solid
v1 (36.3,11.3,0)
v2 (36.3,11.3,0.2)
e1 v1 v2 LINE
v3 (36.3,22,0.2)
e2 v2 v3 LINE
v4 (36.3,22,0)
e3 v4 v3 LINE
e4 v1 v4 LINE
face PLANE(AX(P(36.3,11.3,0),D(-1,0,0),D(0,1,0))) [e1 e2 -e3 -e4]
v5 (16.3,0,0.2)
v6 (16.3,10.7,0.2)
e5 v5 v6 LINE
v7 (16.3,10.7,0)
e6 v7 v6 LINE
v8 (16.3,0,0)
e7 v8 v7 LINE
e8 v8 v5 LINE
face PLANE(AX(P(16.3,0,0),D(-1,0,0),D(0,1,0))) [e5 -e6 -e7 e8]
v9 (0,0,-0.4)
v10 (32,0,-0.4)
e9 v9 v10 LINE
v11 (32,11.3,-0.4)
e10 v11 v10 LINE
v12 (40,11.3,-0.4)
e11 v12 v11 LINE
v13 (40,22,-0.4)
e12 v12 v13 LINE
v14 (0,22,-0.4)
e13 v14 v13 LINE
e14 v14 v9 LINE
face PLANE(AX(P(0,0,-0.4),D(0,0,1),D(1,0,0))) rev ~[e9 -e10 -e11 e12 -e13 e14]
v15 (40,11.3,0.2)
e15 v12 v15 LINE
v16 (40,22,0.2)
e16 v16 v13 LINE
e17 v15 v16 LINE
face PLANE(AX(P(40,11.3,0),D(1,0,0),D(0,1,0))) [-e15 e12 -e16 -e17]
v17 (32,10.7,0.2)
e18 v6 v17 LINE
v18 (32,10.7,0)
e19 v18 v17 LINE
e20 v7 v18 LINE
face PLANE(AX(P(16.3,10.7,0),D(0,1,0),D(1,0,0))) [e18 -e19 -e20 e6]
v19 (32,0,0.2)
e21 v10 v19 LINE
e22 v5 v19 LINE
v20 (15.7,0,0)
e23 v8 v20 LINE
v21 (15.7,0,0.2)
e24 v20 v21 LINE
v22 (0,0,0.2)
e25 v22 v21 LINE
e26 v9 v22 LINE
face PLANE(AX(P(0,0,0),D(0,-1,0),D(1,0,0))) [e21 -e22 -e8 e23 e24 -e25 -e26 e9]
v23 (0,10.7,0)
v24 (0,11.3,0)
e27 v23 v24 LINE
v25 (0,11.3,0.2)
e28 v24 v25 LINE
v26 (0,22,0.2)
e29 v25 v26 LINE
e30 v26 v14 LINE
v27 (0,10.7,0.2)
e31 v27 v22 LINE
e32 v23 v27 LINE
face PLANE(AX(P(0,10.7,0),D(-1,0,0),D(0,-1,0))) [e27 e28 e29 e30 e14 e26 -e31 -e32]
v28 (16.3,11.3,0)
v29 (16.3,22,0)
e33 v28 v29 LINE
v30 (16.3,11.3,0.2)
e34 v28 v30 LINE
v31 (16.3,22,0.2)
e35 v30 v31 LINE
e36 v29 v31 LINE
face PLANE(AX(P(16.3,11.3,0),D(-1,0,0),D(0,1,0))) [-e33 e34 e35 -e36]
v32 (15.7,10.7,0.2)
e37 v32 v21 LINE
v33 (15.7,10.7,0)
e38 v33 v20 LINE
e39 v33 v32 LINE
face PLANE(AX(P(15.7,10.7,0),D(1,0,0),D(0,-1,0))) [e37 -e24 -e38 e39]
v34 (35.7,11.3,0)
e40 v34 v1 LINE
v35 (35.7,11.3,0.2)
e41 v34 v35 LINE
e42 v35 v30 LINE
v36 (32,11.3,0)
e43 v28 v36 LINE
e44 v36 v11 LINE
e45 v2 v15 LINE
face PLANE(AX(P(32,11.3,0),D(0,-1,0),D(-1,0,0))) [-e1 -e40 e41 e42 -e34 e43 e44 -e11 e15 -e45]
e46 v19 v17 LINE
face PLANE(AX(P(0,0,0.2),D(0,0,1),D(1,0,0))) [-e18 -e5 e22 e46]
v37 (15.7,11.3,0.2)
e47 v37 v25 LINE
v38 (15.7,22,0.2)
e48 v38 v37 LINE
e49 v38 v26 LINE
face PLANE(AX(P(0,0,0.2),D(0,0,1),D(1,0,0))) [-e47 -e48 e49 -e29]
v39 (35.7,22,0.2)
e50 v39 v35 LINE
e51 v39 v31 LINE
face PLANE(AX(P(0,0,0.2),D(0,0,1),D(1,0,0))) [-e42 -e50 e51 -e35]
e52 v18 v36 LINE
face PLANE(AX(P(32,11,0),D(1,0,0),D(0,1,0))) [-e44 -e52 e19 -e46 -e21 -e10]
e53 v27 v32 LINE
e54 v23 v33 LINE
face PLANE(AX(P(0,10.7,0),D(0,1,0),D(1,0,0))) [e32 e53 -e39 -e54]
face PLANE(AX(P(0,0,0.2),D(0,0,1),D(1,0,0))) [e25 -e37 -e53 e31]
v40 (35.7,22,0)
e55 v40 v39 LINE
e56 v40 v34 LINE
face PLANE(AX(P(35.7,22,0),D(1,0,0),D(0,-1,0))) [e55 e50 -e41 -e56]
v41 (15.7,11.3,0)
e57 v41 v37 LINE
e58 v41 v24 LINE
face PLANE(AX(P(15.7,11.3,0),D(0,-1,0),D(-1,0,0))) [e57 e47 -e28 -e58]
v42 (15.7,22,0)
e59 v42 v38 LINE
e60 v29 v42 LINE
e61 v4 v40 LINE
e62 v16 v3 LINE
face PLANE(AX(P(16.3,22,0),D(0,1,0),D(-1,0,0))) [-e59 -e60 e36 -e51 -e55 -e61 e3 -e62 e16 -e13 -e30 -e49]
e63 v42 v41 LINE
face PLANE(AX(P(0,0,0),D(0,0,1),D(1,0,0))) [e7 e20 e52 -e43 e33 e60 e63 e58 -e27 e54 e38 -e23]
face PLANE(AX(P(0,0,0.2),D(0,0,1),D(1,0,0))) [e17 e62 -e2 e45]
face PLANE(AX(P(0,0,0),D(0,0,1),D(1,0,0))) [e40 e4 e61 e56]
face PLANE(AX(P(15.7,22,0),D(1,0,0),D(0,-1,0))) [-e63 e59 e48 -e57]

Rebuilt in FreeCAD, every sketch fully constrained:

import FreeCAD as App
import Part
import Sketcher

V = App.Vector
Q = App.Units.Quantity

doc = App.newDocument("Part")
body = doc.addObject("PartDesign::Body", "Body")

# Sketch on XY plane
sketch1 = body.newObject("Sketcher::SketchObject", "Sketch")
sketch1.AttachmentSupport = (doc.getObject("XY_Plane"), [""])
sketch1.MapMode = "FlatFace"
sketch1.addGeometry([
    Part.LineSegment(V(0, 0, 0), V(32, 0, 0)),  # 0
    Part.LineSegment(V(32, 0, 0), V(32, 11, 0)),  # 1
    Part.LineSegment(V(32, 11, 0), V(40, 11, 0)),  # 2
    Part.LineSegment(V(40, 11, 0), V(40, 22, 0)),  # 3
    Part.LineSegment(V(40, 22, 0), V(0, 22, 0)),  # 4
    Part.LineSegment(V(0, 22, 0), V(0, 0, 0)),  # 5
], False)
sketch1.addConstraint([
    Sketcher.Constraint("Coincident", 0, 2, 1, 1),
    Sketcher.Constraint("Coincident", 1, 2, 2, 1),
    Sketcher.Constraint("Coincident", 2, 2, 3, 1),
    Sketcher.Constraint("Coincident", 3, 2, 4, 1),
    Sketcher.Constraint("Coincident", 4, 2, 5, 1),
    Sketcher.Constraint("Coincident", 5, 2, 0, 1),
    Sketcher.Constraint("Horizontal", 0),
    Sketcher.Constraint("Vertical", 1),
    Sketcher.Constraint("Horizontal", 2),
    Sketcher.Constraint("Vertical", 3),
    Sketcher.Constraint("Horizontal", 4),
    Sketcher.Constraint("Vertical", 5),
    Sketcher.Constraint("Coincident", 5, 2, -1, 1),
    Sketcher.Constraint("DistanceX", 2, 1, 2, 2, Q("8 mm")),
    Sketcher.Constraint("DistanceY", 5, 2, 5, 1, Q("22 mm")),
    Sketcher.Constraint("DistanceX", 0, 1, 0, 2, Q("32 mm")),
    Sketcher.Constraint("DistanceY", 1, 1, 1, 2, Q("11.3 mm")),
])
pad1 = body.newObject("PartDesign::Pad", "Pad")
pad1.Profile = sketch1
pad1.Length = 0.4
pad1.Reversed = True

# Sketch on XY plane
sketch2 = body.newObject("Sketcher::SketchObject", "Sketch001")
sketch2.AttachmentSupport = (doc.getObject("XY_Plane"), [""])
sketch2.MapMode = "FlatFace"
sketch2.addGeometry([
    Part.LineSegment(V(0, 10.7, 0), V(0, 0, 0)),  # 0
    Part.LineSegment(V(0, 0, 0), V(15.7, 0, 0)),  # 1
    Part.LineSegment(V(15.7, 0, 0), V(15.7, 10.7, 0)),  # 2
    Part.LineSegment(V(15.7, 10.7, 0), V(0, 10.7, 0)),  # 3
    Part.LineSegment(V(16.3, 10.7, 0), V(16.3, 0, 0)),  # 4
    Part.LineSegment(V(16.3, 0, 0), V(32, 0, 0)),  # 5
    Part.LineSegment(V(32, 0, 0), V(32, 10.7, 0)),  # 6
    Part.LineSegment(V(32, 10.7, 0), V(16.3, 10.7, 0)),  # 7
    Part.LineSegment(V(0, 22, 0), V(0, 11.3, 0)),  # 8
    Part.LineSegment(V(0, 11.3, 0), V(15.7, 11.3, 0)),  # 9
    Part.LineSegment(V(15.7, 11.3, 0), V(15.7, 22, 0)),  # 10
    Part.LineSegment(V(15.7, 22, 0), V(0, 22, 0)),  # 11
    Part.LineSegment(V(16.3, 11.3, 0), V(35.7, 11.3, 0)),  # 12
    Part.LineSegment(V(35.7, 11.3, 0), V(35.7, 22, 0)),  # 13
    Part.LineSegment(V(35.7, 22, 0), V(16.3, 22, 0)),  # 14
    Part.LineSegment(V(16.3, 22, 0), V(16.3, 11.3, 0)),  # 15
    Part.LineSegment(V(36.3, 22, 0), V(36.3, 11.3, 0)),  # 16
    Part.LineSegment(V(36.3, 11.3, 0), V(40, 11.3, 0)),  # 17
    Part.LineSegment(V(40, 11.3, 0), V(40, 22, 0)),  # 18
    Part.LineSegment(V(40, 22, 0), V(36.3, 22, 0)),  # 19
], False)
sketch2.addConstraint([
    Sketcher.Constraint("Coincident", 0, 2, 1, 1),
    Sketcher.Constraint("Coincident", 1, 2, 2, 1),
    Sketcher.Constraint("Coincident", 2, 2, 3, 1),
    Sketcher.Constraint("Coincident", 3, 2, 0, 1),
    Sketcher.Constraint("Coincident", 4, 2, 5, 1),
    Sketcher.Constraint("Coincident", 5, 2, 6, 1),
    Sketcher.Constraint("Coincident", 6, 2, 7, 1),
    Sketcher.Constraint("Coincident", 7, 2, 4, 1),
    Sketcher.Constraint("Coincident", 8, 2, 9, 1),
    Sketcher.Constraint("Coincident", 9, 2, 10, 1),
    Sketcher.Constraint("Coincident", 10, 2, 11, 1),
    Sketcher.Constraint("Coincident", 11, 2, 8, 1),
    Sketcher.Constraint("Coincident", 12, 2, 13, 1),
    Sketcher.Constraint("Coincident", 13, 2, 14, 1),
    Sketcher.Constraint("Coincident", 14, 2, 15, 1),
    Sketcher.Constraint("Coincident", 15, 2, 12, 1),
    Sketcher.Constraint("Coincident", 16, 2, 17, 1),
    Sketcher.Constraint("Coincident", 17, 2, 18, 1),
    Sketcher.Constraint("Coincident", 18, 2, 19, 1),
    Sketcher.Constraint("Coincident", 19, 2, 16, 1),
    Sketcher.Constraint("Vertical", 0),
    Sketcher.Constraint("Horizontal", 1),
    Sketcher.Constraint("Vertical", 2),
    Sketcher.Constraint("Horizontal", 3),
    Sketcher.Constraint("Vertical", 4),
    Sketcher.Constraint("Horizontal", 5),
    Sketcher.Constraint("Vertical", 6),
    Sketcher.Constraint("Horizontal", 7),
    Sketcher.Constraint("Vertical", 8),
    Sketcher.Constraint("Horizontal", 9),
    Sketcher.Constraint("Vertical", 10),
    Sketcher.Constraint("Horizontal", 11),
    Sketcher.Constraint("Horizontal", 12),
    Sketcher.Constraint("Vertical", 13),
    Sketcher.Constraint("Horizontal", 14),
    Sketcher.Constraint("Vertical", 15),
    Sketcher.Constraint("Vertical", 16),
    Sketcher.Constraint("Horizontal", 17),
    Sketcher.Constraint("Vertical", 18),
    Sketcher.Constraint("Horizontal", 19),
    Sketcher.Constraint("Coincident", 0, 2, -1, 1),
    Sketcher.Constraint("PointOnObject", 4, 2, -1),
    Sketcher.Constraint("PointOnObject", 8, 2, -2),
    Sketcher.Constraint("Horizontal", 3, 2, 6, 2),
    Sketcher.Constraint("Horizontal", 9, 2, 12, 2),
    Sketcher.Constraint("Horizontal", 11, 2, 13, 2),
    Sketcher.Constraint("Horizontal", 15, 2, 16, 2),
    Sketcher.Constraint("Horizontal", 14, 2, 18, 2),
    Sketcher.Constraint("Vertical", 2, 2, 9, 2),
    Sketcher.Constraint("Vertical", 7, 2, 14, 2),
    Sketcher.Constraint("Equal", 3, 5),
    Sketcher.Constraint("Equal", 6, 8),
    Sketcher.Constraint("DistanceY", -1, 1, 10, 2, Q("22 mm")),
    Sketcher.Constraint("DistanceX", 6, 2, 17, 2, Q("8 mm")),
    Sketcher.Constraint("DistanceX", 1, 2, 4, 2, Q("0.6 mm")),
    Sketcher.Constraint("DistanceY", 3, 2, 8, 2, Q("0.6 mm")),
    Sketcher.Constraint("DistanceX", 12, 2, 16, 2, Q("0.6 mm")),
    Sketcher.Constraint("DistanceX", 1, 1, 1, 2, Q("15.7 mm")),
    Sketcher.Constraint("DistanceX", 12, 1, 12, 2, Q("19.4 mm")),
])
pad2 = body.newObject("PartDesign::Pad", "Pad001")
pad2.Profile = sketch2
pad2.Length = 0.2

doc.recompute()
